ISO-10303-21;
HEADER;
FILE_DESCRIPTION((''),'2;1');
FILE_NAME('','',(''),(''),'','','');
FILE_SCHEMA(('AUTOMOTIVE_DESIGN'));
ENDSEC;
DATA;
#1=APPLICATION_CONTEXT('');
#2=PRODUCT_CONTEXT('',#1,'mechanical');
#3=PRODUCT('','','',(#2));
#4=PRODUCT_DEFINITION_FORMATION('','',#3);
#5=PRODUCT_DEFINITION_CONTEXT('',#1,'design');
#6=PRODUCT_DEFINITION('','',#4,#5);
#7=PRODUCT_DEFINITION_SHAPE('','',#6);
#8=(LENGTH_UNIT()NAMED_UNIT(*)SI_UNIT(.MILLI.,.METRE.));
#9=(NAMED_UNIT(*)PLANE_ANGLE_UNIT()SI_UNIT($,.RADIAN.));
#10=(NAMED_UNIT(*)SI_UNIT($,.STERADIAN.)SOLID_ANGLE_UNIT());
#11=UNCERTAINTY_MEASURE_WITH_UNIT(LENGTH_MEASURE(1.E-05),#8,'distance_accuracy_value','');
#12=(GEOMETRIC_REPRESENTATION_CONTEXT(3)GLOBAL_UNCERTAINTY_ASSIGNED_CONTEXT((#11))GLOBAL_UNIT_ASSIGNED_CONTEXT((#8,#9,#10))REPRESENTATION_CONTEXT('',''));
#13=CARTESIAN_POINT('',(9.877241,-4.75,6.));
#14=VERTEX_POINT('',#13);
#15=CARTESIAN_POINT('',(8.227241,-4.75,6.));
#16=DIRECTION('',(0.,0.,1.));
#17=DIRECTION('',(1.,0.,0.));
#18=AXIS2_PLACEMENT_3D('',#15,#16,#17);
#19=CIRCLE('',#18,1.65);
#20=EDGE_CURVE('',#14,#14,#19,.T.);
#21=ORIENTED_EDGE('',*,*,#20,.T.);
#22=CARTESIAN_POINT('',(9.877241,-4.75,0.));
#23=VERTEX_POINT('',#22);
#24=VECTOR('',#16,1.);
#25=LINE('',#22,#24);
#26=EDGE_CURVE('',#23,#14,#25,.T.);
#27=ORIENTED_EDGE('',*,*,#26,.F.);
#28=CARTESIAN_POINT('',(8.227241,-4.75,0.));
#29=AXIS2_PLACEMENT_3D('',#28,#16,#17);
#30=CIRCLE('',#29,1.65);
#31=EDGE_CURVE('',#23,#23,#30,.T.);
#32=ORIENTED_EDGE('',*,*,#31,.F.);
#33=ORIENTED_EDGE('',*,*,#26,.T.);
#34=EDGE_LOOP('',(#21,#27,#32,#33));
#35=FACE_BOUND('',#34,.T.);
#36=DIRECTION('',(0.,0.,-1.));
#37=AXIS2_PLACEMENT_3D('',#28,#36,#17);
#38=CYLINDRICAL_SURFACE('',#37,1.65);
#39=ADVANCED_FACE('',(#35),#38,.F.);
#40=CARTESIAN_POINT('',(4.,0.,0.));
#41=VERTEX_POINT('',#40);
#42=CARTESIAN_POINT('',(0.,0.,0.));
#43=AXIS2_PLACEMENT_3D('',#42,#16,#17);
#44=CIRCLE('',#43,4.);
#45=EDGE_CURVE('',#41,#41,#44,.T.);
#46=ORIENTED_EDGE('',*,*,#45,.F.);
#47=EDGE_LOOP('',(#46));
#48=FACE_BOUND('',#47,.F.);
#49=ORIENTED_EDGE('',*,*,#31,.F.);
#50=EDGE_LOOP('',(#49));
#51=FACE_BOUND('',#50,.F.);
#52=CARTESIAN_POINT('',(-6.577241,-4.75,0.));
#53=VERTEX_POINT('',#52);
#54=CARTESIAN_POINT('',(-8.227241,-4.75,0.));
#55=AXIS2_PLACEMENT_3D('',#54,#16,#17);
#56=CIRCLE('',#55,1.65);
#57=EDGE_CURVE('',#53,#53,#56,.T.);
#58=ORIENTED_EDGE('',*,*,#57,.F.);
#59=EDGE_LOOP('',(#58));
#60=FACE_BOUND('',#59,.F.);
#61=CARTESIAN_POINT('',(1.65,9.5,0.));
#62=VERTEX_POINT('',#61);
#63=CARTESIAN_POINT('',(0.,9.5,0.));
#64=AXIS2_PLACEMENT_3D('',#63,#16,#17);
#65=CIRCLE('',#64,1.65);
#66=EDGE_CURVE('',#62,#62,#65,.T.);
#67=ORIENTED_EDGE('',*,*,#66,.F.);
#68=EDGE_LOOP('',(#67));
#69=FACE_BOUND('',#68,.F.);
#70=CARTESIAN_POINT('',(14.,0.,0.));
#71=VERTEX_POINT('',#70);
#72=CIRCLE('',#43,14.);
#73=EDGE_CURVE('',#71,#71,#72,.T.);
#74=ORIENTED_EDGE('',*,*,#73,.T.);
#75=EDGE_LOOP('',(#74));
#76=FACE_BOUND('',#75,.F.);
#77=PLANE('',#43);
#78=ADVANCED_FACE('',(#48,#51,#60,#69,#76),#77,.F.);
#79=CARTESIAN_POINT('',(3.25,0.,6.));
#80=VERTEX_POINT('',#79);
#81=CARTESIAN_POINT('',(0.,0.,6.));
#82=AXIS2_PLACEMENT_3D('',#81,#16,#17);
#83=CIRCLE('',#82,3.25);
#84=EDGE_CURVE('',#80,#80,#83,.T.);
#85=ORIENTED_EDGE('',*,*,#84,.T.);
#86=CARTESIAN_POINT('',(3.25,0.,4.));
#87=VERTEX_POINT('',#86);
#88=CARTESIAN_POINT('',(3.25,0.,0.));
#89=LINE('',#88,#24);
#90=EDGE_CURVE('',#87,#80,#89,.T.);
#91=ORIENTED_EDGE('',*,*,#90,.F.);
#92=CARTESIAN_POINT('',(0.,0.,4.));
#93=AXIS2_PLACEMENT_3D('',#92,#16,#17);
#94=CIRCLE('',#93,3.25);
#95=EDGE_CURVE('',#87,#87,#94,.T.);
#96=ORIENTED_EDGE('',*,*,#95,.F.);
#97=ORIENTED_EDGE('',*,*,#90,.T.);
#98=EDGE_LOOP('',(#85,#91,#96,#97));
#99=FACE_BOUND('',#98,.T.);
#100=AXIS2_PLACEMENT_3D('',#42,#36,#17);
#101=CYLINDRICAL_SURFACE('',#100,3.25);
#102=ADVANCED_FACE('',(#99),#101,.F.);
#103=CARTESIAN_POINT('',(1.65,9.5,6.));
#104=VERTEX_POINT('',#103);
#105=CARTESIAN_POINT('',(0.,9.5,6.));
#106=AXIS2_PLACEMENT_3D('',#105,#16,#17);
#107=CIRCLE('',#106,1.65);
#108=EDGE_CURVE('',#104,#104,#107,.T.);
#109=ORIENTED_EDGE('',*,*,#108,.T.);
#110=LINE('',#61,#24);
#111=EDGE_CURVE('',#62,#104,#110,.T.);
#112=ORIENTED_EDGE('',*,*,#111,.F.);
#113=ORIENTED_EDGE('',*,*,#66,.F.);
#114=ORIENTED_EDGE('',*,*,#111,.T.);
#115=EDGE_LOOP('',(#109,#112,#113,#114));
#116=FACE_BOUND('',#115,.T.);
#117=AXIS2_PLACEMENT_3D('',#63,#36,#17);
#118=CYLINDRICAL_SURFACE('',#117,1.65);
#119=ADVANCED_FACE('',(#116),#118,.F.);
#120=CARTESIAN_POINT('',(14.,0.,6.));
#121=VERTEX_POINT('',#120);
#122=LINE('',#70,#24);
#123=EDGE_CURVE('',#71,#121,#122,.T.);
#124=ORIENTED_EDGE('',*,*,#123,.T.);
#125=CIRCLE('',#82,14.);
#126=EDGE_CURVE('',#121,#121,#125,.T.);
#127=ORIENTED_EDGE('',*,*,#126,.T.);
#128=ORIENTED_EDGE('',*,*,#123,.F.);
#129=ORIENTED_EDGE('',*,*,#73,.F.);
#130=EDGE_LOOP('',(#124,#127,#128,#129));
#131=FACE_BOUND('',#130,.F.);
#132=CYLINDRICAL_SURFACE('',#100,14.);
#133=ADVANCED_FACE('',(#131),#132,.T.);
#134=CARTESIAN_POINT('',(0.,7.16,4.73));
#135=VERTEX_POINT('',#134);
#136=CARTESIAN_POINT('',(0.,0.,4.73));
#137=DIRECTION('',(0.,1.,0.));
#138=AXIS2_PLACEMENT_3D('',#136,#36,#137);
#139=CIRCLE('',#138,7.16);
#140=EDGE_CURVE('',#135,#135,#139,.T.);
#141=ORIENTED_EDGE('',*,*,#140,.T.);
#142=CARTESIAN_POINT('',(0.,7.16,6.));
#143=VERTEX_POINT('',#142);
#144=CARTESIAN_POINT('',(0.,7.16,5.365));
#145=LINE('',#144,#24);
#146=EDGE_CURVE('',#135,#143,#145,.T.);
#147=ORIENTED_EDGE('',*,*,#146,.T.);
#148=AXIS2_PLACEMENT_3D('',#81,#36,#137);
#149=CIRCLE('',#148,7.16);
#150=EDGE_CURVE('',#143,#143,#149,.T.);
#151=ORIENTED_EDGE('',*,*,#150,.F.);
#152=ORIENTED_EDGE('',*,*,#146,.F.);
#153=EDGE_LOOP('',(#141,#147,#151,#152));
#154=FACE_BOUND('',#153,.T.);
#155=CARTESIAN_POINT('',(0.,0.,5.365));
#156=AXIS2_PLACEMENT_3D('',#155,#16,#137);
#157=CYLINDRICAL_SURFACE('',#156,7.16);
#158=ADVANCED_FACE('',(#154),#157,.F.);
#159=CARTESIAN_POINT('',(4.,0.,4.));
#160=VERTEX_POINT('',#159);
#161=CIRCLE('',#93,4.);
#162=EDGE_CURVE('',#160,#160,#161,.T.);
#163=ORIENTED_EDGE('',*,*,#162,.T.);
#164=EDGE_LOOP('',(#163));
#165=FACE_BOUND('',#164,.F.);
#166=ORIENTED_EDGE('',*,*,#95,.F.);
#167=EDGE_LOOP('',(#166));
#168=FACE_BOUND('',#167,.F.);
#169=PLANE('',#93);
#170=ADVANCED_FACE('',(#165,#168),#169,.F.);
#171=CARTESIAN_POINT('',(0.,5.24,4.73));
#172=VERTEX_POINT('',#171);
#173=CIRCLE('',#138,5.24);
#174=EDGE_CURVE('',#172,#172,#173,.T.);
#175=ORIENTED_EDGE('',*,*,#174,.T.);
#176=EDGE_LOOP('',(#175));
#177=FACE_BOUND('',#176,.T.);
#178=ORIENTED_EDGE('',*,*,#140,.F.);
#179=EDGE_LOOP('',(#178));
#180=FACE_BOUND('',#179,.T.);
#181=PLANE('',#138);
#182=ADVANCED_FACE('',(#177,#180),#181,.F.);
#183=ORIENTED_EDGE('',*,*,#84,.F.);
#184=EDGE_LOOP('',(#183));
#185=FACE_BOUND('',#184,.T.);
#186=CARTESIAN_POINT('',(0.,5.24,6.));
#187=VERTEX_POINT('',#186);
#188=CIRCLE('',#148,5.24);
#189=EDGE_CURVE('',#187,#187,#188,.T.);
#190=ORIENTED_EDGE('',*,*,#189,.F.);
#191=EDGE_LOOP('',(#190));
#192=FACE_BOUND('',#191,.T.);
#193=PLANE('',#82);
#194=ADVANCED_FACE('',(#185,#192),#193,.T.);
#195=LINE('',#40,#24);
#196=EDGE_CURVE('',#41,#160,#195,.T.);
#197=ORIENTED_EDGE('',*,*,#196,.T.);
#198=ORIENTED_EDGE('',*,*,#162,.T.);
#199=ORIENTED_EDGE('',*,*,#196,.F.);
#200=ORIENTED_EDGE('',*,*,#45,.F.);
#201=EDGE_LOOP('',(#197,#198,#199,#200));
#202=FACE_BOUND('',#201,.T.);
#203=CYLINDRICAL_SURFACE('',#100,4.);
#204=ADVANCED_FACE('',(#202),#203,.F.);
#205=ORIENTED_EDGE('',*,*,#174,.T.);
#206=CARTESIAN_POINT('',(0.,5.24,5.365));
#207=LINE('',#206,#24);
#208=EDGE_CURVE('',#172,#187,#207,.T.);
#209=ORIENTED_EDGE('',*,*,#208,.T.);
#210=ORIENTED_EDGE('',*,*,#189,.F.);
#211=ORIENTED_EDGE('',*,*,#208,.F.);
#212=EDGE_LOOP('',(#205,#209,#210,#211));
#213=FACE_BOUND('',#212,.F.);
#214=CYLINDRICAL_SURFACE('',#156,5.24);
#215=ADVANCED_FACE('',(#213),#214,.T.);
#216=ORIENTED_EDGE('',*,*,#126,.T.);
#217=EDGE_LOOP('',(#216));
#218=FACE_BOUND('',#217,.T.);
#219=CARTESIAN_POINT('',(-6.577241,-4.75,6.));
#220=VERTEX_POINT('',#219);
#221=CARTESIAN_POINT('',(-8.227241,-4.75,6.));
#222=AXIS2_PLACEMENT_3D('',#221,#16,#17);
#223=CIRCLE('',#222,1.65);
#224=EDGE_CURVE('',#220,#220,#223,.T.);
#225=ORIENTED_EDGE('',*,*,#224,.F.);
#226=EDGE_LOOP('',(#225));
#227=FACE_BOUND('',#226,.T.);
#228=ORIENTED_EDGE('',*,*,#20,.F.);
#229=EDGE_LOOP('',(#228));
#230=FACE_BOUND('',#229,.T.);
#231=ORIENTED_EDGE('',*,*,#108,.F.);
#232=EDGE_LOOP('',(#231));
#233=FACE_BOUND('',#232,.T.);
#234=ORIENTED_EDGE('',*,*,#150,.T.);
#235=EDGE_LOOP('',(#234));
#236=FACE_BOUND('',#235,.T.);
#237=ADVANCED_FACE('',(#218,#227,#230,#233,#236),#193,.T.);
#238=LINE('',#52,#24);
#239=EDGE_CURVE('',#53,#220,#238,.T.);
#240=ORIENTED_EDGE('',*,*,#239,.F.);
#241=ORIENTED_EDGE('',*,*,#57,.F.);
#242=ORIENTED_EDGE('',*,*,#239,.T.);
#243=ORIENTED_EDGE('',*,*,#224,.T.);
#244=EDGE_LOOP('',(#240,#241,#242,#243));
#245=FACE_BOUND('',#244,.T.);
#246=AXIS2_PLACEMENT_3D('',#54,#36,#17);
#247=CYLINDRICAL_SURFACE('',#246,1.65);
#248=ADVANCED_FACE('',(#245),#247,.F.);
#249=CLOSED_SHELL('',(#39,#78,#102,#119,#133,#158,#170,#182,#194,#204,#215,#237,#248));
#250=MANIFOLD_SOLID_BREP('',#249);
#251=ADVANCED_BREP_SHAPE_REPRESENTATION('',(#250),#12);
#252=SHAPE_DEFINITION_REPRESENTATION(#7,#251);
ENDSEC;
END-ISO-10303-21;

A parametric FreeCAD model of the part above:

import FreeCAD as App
import Part
import Sketcher

V = App.Vector


def add_polygon(sketch, points):
    """Adds a closed chain of lines whose ends are joined by coincident constraints."""
    first, n = sketch.GeometryCount, len(points)
    for a, b in zip(points, points[1:] + points[:1]):
        sketch.addGeometry(Part.LineSegment(App.Vector(*a, 0), App.Vector(*b, 0)), False)
    for i in range(n):
        sketch.addConstraint(Sketcher.Constraint("Coincident", first + i, 2, first + (i + 1) % n, 1))

doc = App.newDocument("Part")
body = doc.addObject("PartDesign::Body", "Body")

sketch1 = doc.addObject("Sketcher::SketchObject", "Sketch")
body.addObject(sketch1)
sketch1.AttachmentSupport = (doc.XY_Plane, [""])
sketch1.MapMode = "FlatFace"
sketch1.addGeometry([
    Part.Circle(V(0, 0, 0), V(0, 0, 1), 14),
    Part.Circle(V(-8.227241, -4.75, 0), V(0, 0, 1), 1.65),
    Part.Circle(V(8.227241, -4.75, 0), V(0, 0, 1), 1.65),
    Part.Circle(V(0, 0, 0), V(0, 0, 1), 3.25),
    Part.Circle(V(0, 9.5, 0), V(0, 0, 1), 1.65),
], False)
sketch1.addConstraint([
    Sketcher.Constraint("Coincident", 0, 3, -1, 1),
    Sketcher.Constraint("Coincident", 3, 3, -1, 1),
    Sketcher.Constraint("Equal", 1, 2),
    Sketcher.Constraint("Equal", 2, 4),
    Sketcher.Constraint("Symmetric", 1, 3, 2, 3, -2),
    Sketcher.Constraint("PointOnObject", 4, 3, -2),
    Sketcher.Constraint("Diameter", 0, 28.0),
    Sketcher.Constraint("Diameter", 1, 3.3),
    Sketcher.Constraint("Diameter", 3, 6.5),
    Sketcher.Constraint("DistanceY", -1, 1, 4, 3, 9.5),
    Sketcher.Constraint("DistanceY", 1, 3, -1, 1, 4.75),
    Sketcher.Constraint("DistanceX", 1, 3, -1, 1, 8.227241),
])
pad1 = doc.addObject("PartDesign::Pad", "Pad")
body.addObject(pad1)
pad1.Profile = sketch1
pad1.Length = 6

sketch2 = doc.addObject("Sketcher::SketchObject", "Sketch001")
body.addObject(sketch2)
sketch2.AttachmentSupport = (doc.YZ_Plane, [""])
sketch2.MapMode = "FlatFace"
add_polygon(sketch2, [(5.24, 6), (5.24, 4.73), (7.16, 4.73), (7.16, 6)])
sketch2.addConstraint([
    Sketcher.Constraint("Vertical", 0),
    Sketcher.Constraint("Horizontal", 1),
    Sketcher.Constraint("Vertical", 2),
    Sketcher.Constraint("Horizontal", 3),
    Sketcher.Constraint("DistanceY", -1, 1, 2, 2, 6.0),
    Sketcher.Constraint("DistanceX", 1, 1, 1, 2, 1.92),
    Sketcher.Constraint("DistanceY", 0, 2, 0, 1, 1.27),
    Sketcher.Constraint("DistanceX", -1, 1, 0, 2, 5.24),
])
groove = doc.addObject("PartDesign::Groove", "Groove")
body.addObject(groove)
groove.Profile = sketch2
groove.ReferenceAxis = (sketch2, ["V_Axis"])
groove.Angle = 360

sketch3 = doc.addObject("Sketcher::SketchObject", "Sketch002")
body.addObject(sketch3)
sketch3.AttachmentSupport = (doc.XY_Plane, [""])
sketch3.MapMode = "FlatFace"
sketch3.addGeometry([
    Part.Circle(V(0, 0, 0), V(0, 0, 1), 4),
    Part.Circle(V(0, 0, 0), V(0, 0, 1), 3.25),
], False)
sketch3.addConstraint([
    Sketcher.Constraint("Coincident", 0, 3, -1, 1),
    Sketcher.Constraint("Coincident", 1, 3, -1, 1),
    Sketcher.Constraint("Diameter", 0, 8.0),
    Sketcher.Constraint("Diameter", 1, 6.5),
])
pocket1 = doc.addObject("PartDesign::Pocket", "Pocket")
body.addObject(pocket1)
pocket1.Profile = sketch3
pocket1.Length = 4
pocket1.Reversed = True

doc.recompute()
